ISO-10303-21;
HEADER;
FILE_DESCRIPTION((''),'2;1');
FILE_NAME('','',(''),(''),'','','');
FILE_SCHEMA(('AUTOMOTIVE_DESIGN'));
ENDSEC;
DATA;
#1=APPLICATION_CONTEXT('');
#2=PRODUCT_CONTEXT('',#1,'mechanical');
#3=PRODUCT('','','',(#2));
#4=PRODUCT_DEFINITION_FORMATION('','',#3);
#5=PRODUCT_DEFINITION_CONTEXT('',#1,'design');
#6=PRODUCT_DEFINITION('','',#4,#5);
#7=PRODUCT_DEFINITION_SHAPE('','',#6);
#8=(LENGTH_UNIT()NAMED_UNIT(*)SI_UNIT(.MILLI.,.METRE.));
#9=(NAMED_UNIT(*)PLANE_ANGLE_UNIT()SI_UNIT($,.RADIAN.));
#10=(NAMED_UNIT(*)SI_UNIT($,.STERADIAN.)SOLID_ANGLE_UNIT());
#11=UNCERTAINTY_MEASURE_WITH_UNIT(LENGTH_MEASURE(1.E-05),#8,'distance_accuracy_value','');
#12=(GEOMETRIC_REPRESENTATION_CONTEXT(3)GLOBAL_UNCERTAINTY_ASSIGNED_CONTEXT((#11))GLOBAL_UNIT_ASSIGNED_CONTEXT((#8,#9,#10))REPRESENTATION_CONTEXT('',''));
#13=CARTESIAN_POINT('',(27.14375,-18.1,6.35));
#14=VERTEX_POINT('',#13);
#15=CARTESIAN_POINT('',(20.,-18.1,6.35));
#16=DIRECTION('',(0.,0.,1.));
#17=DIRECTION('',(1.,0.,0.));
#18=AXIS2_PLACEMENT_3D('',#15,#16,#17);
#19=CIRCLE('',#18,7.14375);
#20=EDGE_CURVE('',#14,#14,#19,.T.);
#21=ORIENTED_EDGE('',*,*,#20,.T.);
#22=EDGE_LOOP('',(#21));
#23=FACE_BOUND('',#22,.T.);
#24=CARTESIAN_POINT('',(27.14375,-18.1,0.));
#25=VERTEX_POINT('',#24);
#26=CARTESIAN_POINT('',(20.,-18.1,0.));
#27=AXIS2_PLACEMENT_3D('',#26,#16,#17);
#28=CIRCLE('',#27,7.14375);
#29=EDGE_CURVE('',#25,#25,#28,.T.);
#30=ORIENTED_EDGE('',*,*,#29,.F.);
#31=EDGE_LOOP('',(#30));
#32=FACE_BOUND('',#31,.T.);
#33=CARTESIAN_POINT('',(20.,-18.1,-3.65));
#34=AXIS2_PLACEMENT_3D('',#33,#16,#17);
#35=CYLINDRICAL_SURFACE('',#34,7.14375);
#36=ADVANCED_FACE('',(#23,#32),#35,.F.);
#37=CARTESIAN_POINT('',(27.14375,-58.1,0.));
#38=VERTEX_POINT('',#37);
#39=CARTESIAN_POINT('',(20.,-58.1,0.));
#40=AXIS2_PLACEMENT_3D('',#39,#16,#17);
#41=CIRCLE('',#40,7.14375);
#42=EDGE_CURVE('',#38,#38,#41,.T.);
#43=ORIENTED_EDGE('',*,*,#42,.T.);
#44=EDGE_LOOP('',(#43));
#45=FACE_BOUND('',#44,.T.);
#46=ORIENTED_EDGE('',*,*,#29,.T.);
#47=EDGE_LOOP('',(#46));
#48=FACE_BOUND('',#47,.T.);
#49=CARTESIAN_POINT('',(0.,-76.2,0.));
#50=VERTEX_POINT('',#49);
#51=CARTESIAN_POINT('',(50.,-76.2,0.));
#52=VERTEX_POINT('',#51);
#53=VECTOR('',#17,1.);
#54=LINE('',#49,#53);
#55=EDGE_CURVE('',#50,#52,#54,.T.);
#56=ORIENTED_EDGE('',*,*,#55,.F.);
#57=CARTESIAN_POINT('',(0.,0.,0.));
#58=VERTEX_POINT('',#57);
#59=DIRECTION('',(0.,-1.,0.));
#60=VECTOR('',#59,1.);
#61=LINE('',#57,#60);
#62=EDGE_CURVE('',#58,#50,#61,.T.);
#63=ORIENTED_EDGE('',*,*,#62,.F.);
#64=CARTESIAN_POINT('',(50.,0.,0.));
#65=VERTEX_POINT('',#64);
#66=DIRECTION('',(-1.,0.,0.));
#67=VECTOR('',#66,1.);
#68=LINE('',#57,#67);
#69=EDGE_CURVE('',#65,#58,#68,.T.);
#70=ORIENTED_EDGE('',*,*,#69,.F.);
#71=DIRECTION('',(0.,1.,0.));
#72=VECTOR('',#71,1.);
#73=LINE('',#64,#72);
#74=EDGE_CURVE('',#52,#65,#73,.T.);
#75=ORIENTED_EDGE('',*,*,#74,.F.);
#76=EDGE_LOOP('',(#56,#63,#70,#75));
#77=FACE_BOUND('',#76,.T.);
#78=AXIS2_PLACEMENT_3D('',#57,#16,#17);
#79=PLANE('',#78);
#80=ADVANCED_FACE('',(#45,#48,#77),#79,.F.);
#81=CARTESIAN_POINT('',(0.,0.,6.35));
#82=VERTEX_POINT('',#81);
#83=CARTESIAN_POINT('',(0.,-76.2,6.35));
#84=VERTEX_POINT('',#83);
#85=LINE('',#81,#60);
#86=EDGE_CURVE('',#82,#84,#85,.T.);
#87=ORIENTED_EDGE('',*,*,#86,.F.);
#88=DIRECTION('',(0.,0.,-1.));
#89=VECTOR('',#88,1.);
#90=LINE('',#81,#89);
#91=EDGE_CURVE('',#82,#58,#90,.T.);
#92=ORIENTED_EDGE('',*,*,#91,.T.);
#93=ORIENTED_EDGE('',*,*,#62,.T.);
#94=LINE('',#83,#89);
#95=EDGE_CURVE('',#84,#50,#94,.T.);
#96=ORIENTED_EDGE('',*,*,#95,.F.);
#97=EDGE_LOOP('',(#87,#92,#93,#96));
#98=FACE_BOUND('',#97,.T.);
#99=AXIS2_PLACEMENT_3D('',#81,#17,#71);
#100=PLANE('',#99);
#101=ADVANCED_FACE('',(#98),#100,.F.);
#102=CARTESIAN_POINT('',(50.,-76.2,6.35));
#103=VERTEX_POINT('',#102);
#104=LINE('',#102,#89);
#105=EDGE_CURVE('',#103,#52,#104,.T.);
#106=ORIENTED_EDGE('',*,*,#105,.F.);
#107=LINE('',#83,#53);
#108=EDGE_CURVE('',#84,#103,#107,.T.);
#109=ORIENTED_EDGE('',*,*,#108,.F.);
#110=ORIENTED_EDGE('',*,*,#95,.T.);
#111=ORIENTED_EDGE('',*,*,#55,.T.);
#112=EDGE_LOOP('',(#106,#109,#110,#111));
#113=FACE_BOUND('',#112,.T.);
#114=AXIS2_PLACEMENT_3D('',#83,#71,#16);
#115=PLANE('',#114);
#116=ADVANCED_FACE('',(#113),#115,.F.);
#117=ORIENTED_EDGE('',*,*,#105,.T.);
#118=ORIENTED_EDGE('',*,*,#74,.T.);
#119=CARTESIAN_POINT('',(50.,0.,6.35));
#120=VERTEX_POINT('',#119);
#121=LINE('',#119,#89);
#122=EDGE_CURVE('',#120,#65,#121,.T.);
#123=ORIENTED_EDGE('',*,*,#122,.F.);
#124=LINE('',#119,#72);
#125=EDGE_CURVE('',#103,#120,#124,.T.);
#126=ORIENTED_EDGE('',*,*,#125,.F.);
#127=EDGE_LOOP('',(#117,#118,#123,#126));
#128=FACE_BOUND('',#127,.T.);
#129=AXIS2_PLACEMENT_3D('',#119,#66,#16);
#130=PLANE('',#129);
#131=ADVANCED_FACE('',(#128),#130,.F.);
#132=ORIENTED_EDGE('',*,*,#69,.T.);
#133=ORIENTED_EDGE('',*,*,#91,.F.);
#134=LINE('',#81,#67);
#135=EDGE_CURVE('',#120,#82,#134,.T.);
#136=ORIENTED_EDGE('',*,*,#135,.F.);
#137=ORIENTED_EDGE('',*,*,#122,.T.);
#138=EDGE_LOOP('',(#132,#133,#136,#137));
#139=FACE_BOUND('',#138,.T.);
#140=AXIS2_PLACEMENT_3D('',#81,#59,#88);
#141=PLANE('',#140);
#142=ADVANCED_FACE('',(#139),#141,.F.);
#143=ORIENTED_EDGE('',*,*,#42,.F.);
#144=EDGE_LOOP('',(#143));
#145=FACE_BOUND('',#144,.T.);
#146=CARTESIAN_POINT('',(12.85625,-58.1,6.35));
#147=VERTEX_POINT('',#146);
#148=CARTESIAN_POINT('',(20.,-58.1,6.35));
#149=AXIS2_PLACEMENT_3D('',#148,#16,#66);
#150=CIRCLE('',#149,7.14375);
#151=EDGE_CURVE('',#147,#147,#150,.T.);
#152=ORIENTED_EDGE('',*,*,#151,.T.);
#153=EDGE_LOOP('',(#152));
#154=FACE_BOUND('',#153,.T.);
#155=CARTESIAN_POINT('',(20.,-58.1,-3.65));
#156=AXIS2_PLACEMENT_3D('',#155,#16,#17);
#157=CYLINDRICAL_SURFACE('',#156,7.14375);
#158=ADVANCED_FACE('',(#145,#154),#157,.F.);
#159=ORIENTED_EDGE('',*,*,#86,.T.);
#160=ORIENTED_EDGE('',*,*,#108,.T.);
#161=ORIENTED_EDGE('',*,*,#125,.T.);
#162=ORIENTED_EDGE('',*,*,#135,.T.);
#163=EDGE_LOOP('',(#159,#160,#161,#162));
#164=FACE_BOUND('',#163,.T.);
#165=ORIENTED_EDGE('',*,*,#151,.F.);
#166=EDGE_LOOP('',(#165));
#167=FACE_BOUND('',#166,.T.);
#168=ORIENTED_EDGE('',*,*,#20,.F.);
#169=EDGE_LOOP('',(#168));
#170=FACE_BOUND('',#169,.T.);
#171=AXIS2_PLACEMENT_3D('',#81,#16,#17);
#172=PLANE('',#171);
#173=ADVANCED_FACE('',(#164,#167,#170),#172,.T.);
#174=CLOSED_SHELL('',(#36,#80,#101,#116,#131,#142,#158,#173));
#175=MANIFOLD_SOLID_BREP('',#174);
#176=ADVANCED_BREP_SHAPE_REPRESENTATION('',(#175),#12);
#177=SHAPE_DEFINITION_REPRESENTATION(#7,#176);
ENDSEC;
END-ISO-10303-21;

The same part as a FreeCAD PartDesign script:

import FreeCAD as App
import Part
import Sketcher
from FreeCAD import Vector
Q = App.Units.Quantity

doc = App.newDocument("Part")
body = doc.addObject("PartDesign::Body", "Body")

# Sketch on XY plane
sketch1 = doc.addObject("Sketcher::SketchObject", "Sketch")
body.addObject(sketch1)
sketch1.AttachmentSupport = (doc.XY_Plane, [""])
sketch1.MapMode = "FlatFace"
sketch1.addGeometry([
    Part.LineSegment(Vector(0, 0, 0), Vector(0, -76, 0)),
    Part.LineSegment(Vector(0, -76, 0), Vector(50, -76, 0)),
    Part.LineSegment(Vector(50, -76, 0), Vector(50, 0, 0)),
    Part.LineSegment(Vector(50, 0, 0), Vector(0, 0, 0)),
], False)
sketch1.addConstraint([
    Sketcher.Constraint("Coincident", 0, 2, 1, 1),
    Sketcher.Constraint("Coincident", 1, 2, 2, 1),
    Sketcher.Constraint("Coincident", 2, 2, 3, 1),
    Sketcher.Constraint("Coincident", 3, 2, 0, 1),
    Sketcher.Constraint("Vertical", 0),
    Sketcher.Constraint("Horizontal", 1),
    Sketcher.Constraint("Vertical", 2),
    Sketcher.Constraint("Horizontal", 3),
    Sketcher.Constraint("Coincident", 3, 2, -1, 1),
    Sketcher.Constraint("DistanceY", 0, 2, 0, 1, Q("3 in")),
    Sketcher.Constraint("DistanceX", 1, 1, 1, 2, 50.0),
])
pad1 = doc.addObject("PartDesign::Pad", "Pad")
body.addObject(pad1)
pad1.Profile = sketch1
pad1.Length = Q("0.25 in")

# Sketch on XY plane
sketch2 = doc.addObject("Sketcher::SketchObject", "Sketch001")
body.addObject(sketch2)
sketch2.AttachmentSupport = (doc.XY_Plane, [""])
sketch2.MapMode = "FlatFace"
sketch2.AttachmentOffset = App.Placement(Vector(0, 0, 0.25 * 25.4), App.Rotation())
sketch2.addGeometry([
    Part.Circle(Vector(20, -18, 0), Vector(0, 0, 1), 7),
    Part.Circle(Vector(20, -58, 0), Vector(0, 0, 1), 7),
], False)
sketch2.addConstraint([
    Sketcher.Constraint("Equal", 0, 1),
    Sketcher.Constraint("Vertical", 0, 3, 1, 3),
    Sketcher.Constraint("Diameter", 0, Q("0.5625 in")),
    Sketcher.Constraint("DistanceX", -1, 1, 0, 3, 20.0),
    Sketcher.Constraint("DistanceY", 0, 3, -1, 1, 18.1),
    Sketcher.Constraint("DistanceY", 1, 3, -1, 1, 58.1),
])
pocket1 = doc.addObject("PartDesign::Pocket", "Pocket")
body.addObject(pocket1)
pocket1.Profile = sketch2
pocket1.Length = 10

doc.recompute()
